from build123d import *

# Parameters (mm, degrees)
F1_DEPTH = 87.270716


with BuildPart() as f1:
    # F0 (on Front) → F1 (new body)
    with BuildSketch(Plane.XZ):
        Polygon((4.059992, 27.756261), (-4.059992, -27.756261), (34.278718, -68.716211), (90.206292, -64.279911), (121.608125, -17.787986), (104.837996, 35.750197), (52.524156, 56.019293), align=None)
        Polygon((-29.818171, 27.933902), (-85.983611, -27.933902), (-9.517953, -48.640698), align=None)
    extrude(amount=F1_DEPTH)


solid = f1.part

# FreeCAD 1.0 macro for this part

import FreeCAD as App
import Part
import Sketcher
from FreeCAD import Vector
Q = App.Units.Quantity


def add_polygon(sketch, points):
    """Adds a closed chain of lines whose ends are joined by coincident constraints."""
    first, n = sketch.GeometryCount, len(points)
    for a, b in zip(points, points[1:] + points[:1]):
        sketch.addGeometry(Part.LineSegment(App.Vector(*a, 0), App.Vector(*b, 0)), False)
    for i in range(n):
        sketch.addConstraint(Sketcher.Constraint("Coincident", first + i, 2, first + (i + 1) % n, 1))

doc = App.newDocument("Part")
body = doc.addObject("PartDesign::Body", "Body")
body.AllowCompound = True

sketch1 = body.newObject("Sketcher::SketchObject", "Sketch")
sketch1.AttachmentSupport = (doc.getObject("XZ_Plane"), [""])
sketch1.MapMode = "FlatFace"
add_polygon(sketch1, [(4, 28), (-4, -28), (34, -69), (90, -64), (122, -18), (105, 36), (53, 56)])
add_polygon(sketch1, [(-30, 28), (-86, -28), (-10, -49)])
sketch1.addConstraint(Sketcher.Constraint("Symmetric", 0, 2, 6, 2, -1, 1))
sketch1.addConstraint(Sketcher.Constraint("Equal", 0, 1))
sketch1.addConstraint(Sketcher.Constraint("Equal", 1, 2))
sketch1.addConstraint(Sketcher.Constraint("Equal", 2, 3))
sketch1.addConstraint(Sketcher.Constraint("Equal", 3, 4))
sketch1.addConstraint(Sketcher.Constraint("Equal", 4, 5))
sketch1.addConstraint(Sketcher.Constraint("Equal", 5, 6))
sketch1.addConstraint(Sketcher.Constraint("Equal", 7, 8))
sketch1.addConstraint(Sketcher.Constraint("Equal", 8, 9))
sketch1.addConstraint(Sketcher.Constraint("DistanceY", 7, 2, -1, 1, Q("27.933902 mm")))
sketch1.addConstraint(Sketcher.Constraint("DistanceY", -1, 1, 9, 2, Q("27.933902 mm")))
sketch1.addConstraint(Sketcher.Constraint("DistanceY", 1, 2, 2, 2, Q("4.4363 mm")))
sketch1.addConstraint(Sketcher.Constraint("DistanceX", 6, 2, 2, 2, Q("86.1463 mm")))
sketch1.addConstraint(Sketcher.Constraint("DistanceY", 8, 2, 9, 2, Q("76.5746 mm")))
sketch1.addConstraint(Sketcher.Constraint("DistanceY", 0, 2, -1, 1, Q("27.756261 mm")))
sketch1.addConstraint(Sketcher.Constraint("DistanceY", 1, 2, -1, 1, Q("68.716211 mm")))
sketch1.addConstraint(Sketcher.Constraint("DistanceX", 7, 2, -1, 1, Q("85.983611 mm")))
sketch1.addConstraint(Sketcher.Constraint("DistanceX", 4, 2, 3, 2, Q("16.770129 mm")))
sketch1.addConstraint(Sketcher.Constraint("DistanceY", 2, 2, 4, 2, Q("100.030108 mm")))
pad1 = body.newObject("PartDesign::Pad", "Pad")
pad1.Profile = sketch1
pad1.Length = 87.270716

doc.recompute()
